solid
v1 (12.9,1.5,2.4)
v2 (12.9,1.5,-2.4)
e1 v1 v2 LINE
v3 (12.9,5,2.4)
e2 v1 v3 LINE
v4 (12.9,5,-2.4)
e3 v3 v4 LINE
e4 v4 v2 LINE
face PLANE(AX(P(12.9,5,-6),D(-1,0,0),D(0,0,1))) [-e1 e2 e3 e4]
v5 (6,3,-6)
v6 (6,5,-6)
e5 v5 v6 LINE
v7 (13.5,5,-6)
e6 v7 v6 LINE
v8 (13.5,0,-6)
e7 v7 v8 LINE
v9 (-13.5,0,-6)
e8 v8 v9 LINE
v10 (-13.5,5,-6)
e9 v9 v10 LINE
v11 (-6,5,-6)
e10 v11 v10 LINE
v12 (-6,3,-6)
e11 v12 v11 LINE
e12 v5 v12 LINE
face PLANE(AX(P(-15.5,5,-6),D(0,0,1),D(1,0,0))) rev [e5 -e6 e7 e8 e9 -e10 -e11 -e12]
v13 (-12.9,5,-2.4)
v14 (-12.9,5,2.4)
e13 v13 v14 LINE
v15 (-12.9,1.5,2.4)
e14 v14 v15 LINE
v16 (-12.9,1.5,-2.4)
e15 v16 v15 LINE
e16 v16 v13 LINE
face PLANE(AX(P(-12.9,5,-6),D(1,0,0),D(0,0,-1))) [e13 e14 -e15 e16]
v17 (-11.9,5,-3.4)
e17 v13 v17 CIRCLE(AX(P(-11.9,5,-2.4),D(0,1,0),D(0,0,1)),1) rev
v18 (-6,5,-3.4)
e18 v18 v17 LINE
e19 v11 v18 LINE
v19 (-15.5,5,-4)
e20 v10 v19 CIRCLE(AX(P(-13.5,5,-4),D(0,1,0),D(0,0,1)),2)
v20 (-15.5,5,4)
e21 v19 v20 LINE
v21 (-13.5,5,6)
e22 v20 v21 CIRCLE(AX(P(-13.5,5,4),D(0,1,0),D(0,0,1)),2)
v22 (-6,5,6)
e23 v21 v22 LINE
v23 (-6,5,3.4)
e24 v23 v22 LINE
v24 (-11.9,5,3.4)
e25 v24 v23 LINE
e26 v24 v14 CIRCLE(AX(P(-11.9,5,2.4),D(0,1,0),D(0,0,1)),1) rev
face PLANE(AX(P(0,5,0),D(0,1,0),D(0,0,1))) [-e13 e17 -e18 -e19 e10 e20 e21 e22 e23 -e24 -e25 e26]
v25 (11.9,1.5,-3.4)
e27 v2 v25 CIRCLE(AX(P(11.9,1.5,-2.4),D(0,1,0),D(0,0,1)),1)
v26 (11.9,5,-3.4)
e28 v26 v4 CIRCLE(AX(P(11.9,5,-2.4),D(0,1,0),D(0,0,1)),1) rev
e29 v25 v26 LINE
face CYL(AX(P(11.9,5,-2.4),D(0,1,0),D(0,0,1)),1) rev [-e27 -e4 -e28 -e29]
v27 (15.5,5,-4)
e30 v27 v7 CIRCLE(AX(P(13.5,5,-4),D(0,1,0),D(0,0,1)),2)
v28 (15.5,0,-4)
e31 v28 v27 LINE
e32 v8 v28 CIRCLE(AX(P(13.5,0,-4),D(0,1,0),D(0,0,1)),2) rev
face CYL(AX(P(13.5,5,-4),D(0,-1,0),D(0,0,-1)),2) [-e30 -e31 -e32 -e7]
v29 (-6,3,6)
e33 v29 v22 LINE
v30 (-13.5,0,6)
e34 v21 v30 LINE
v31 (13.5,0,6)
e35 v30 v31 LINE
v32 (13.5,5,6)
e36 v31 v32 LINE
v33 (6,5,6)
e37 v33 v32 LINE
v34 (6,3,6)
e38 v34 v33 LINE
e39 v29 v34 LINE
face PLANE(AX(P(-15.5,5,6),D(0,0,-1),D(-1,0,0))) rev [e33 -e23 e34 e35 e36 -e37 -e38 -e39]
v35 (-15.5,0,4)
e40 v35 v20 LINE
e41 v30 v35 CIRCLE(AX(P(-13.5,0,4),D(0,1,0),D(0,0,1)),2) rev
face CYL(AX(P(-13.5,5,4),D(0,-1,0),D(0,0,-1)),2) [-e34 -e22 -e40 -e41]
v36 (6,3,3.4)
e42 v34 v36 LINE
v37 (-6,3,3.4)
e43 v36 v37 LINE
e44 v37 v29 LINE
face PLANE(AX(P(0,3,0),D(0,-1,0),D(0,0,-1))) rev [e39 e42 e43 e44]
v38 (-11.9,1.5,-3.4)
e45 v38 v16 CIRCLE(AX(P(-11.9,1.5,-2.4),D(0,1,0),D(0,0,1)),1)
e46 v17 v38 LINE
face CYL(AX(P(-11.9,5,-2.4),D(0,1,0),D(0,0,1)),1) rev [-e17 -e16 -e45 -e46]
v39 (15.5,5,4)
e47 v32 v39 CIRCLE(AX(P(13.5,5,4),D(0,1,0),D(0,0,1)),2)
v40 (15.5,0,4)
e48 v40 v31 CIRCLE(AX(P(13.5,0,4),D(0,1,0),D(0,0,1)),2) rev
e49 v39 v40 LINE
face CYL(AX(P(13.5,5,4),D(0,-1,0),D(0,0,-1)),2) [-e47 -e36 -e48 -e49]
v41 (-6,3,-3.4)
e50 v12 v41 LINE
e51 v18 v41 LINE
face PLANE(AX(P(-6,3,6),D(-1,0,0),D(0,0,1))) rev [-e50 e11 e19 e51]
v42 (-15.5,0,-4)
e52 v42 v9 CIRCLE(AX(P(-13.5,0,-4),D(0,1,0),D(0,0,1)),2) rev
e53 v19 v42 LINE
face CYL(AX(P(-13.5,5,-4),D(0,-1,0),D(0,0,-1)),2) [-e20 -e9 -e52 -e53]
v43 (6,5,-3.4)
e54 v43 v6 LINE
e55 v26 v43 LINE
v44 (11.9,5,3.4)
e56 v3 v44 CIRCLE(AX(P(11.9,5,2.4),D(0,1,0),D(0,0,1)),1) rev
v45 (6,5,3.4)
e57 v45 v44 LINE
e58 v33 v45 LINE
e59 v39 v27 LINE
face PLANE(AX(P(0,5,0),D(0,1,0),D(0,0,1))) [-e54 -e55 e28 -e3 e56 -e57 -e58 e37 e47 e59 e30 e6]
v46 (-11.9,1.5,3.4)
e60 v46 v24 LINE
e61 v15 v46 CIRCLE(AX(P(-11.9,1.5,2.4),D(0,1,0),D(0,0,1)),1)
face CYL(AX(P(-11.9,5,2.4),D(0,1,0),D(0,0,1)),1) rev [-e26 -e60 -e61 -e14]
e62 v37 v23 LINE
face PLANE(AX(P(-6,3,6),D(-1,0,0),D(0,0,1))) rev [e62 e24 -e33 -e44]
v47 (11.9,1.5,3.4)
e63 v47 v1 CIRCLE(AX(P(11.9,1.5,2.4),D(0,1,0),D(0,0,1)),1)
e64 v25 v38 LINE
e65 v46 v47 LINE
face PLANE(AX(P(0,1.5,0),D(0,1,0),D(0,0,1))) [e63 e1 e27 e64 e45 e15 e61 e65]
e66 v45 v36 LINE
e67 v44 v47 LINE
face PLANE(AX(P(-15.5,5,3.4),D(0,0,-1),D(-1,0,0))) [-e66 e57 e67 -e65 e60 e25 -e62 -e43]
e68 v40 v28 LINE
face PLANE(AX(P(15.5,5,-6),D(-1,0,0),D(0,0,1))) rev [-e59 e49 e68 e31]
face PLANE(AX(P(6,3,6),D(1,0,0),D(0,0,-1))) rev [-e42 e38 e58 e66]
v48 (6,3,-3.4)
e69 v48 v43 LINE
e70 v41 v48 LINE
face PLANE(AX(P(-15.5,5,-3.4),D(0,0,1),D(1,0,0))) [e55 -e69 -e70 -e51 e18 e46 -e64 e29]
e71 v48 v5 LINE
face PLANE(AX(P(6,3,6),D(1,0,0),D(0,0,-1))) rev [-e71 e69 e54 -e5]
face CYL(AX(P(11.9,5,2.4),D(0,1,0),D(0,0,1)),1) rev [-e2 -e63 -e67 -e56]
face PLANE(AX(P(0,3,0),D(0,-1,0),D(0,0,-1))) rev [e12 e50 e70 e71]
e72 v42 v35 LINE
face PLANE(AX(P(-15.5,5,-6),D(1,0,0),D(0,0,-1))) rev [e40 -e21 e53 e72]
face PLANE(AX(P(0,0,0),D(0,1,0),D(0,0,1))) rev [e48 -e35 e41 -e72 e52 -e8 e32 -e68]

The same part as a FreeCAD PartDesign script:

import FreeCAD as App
import Part
import Sketcher
from FreeCAD import Vector
Q = App.Units.Quantity


def edges_at(feature, points):
    """Names of the edges that pass closest to the given points."""
    edges = feature.Shape.Edges
    near = lambda p: min(range(len(edges)), key=lambda i: edges[i].distToShape(Part.Vertex(*p))[0])
    return sorted({f"Edge{near(p) + 1}" for p in points})


def faces_at(feature, points):
    """Names of the faces that lie closest to the given points."""
    faces = feature.Shape.Faces
    near = lambda p: min(range(len(faces)), key=lambda i: faces[i].distToShape(Part.Vertex(*p))[0])
    return sorted({f"Face{near(p) + 1}" for p in points})

doc = App.newDocument("Part")
body = doc.addObject("PartDesign::Body", "Body")

# Sketch on XZ plane
sketch1 = body.newObject("Sketcher::SketchObject", "Sketch")
sketch1.AttachmentSupport = (doc.getObject("XZ_Plane"), [""])
sketch1.MapMode = "FlatFace"
sketch1.addGeometry(Part.LineSegment(Vector(-16, -6, 0), Vector(-16, 6, 0)), False)
sketch1.addGeometry(Part.LineSegment(Vector(-16, 6, 0), Vector(16, 6, 0)), False)
sketch1.addGeometry(Part.LineSegment(Vector(16, 6, 0), Vector(16, -6, 0)), False)
sketch1.addGeometry(Part.LineSegment(Vector(16, -6, 0), Vector(-16, -6, 0)), False)
sketch1.addConstraint(Sketcher.Constraint("Coincident", 0, 2, 1, 1))
sketch1.addConstraint(Sketcher.Constraint("Coincident", 1, 2, 2, 1))
sketch1.addConstraint(Sketcher.Constraint("Coincident", 2, 2, 3, 1))
sketch1.addConstraint(Sketcher.Constraint("Coincident", 3, 2, 0, 1))
sketch1.addConstraint(Sketcher.Constraint("Vertical", 0))
sketch1.addConstraint(Sketcher.Constraint("Horizontal", 1))
sketch1.addConstraint(Sketcher.Constraint("Vertical", 2))
sketch1.addConstraint(Sketcher.Constraint("Horizontal", 3))
sketch1.addConstraint(Sketcher.Constraint("Symmetric", 0, 2, 2, 2, -1, 1))
sketch1.addConstraint(Sketcher.Constraint("DistanceX", 1, 1, 1, 2, Q("31 mm")))
sketch1.addConstraint(Sketcher.Constraint("DistanceY", 0, 1, 0, 2, Q("12 mm")))
pad1 = body.newObject("PartDesign::Pad", "Pad")
pad1.Profile = sketch1
pad1.Length = 5
pad1.Reversed = True
doc.recompute()

thickness = body.newObject("PartDesign::Thickness", "Thickness")
thickness.Base = (pad1, faces_at(pad1, [(0, 5, 0)]))
thickness.Value = 2.6
thickness.Reversed = True
thickness.Join = "Intersection"

# Sketch on XZ plane
sketch2 = body.newObject("Sketcher::SketchObject", "Sketch001")
sketch2.AttachmentSupport = (doc.getObject("XZ_Plane"), [""])
sketch2.MapMode = "FlatFace"
sketch2.AttachmentOffset = App.Placement(Vector(0, 0, -2.6), App.Rotation())
sketch2.addGeometry(Part.LineSegment(Vector(13, 3, 0), Vector(-13, 3, 0)), False)
sketch2.addGeometry(Part.LineSegment(Vector(-13, 3, 0), Vector(-13, -3, 0)), False)
sketch2.addGeometry(Part.LineSegment(Vector(-13, -3, 0), Vector(13, -3, 0)), False)
sketch2.addGeometry(Part.LineSegment(Vector(13, -3, 0), Vector(13, 3, 0)), False)
sketch2.addConstraint(Sketcher.Constraint("Coincident", 0, 2, 1, 1))
sketch2.addConstraint(Sketcher.Constraint("Coincident", 1, 2, 2, 1))
sketch2.addConstraint(Sketcher.Constraint("Coincident", 2, 2, 3, 1))
sketch2.addConstraint(Sketcher.Constraint("Coincident", 3, 2, 0, 1))
sketch2.addConstraint(Sketcher.Constraint("Horizontal", 0))
sketch2.addConstraint(Sketcher.Constraint("Vertical", 1))
sketch2.addConstraint(Sketcher.Constraint("Horizontal", 2))
sketch2.addConstraint(Sketcher.Constraint("Vertical", 3))
sketch2.addConstraint(Sketcher.Constraint("Symmetric", 0, 2, 2, 2, -1, 1))
sketch2.addConstraint(Sketcher.Constraint("DistanceX", 0, 2, 0, 1, Q("25.8 mm")))
sketch2.addConstraint(Sketcher.Constraint("DistanceY", 1, 2, 1, 1, Q("6.8 mm")))
pocket1 = body.newObject("PartDesign::Pocket", "Pocket")
pocket1.Profile = sketch2
pocket1.Length = 1.1
pocket1.Reversed = True

# Sketch on XZ plane
sketch3 = body.newObject("Sketcher::SketchObject", "Sketch002")
sketch3.AttachmentSupport = (doc.getObject("XZ_Plane"), [""])
sketch3.MapMode = "FlatFace"
sketch3.AttachmentOffset = App.Placement(Vector(0, 0, -5), App.Rotation())
sketch3.addGeometry(Part.LineSegment(Vector(-6, -6, 0), Vector(-6, 6, 0)), False)
sketch3.addGeometry(Part.LineSegment(Vector(-6, 6, 0), Vector(6, 6, 0)), False)
sketch3.addGeometry(Part.LineSegment(Vector(6, 6, 0), Vector(6, -6, 0)), False)
sketch3.addGeometry(Part.LineSegment(Vector(6, -6, 0), Vector(-6, -6, 0)), False)
sketch3.addConstraint(Sketcher.Constraint("Coincident", 0, 2, 1, 1))
sketch3.addConstraint(Sketcher.Constraint("Coincident", 1, 2, 2, 1))
sketch3.addConstraint(Sketcher.Constraint("Coincident", 2, 2, 3, 1))
sketch3.addConstraint(Sketcher.Constraint("Coincident", 3, 2, 0, 1))
sketch3.addConstraint(Sketcher.Constraint("Vertical", 0))
sketch3.addConstraint(Sketcher.Constraint("Horizontal", 1))
sketch3.addConstraint(Sketcher.Constraint("Vertical", 2))
sketch3.addConstraint(Sketcher.Constraint("Horizontal", 3))
sketch3.addConstraint(Sketcher.Constraint("Symmetric", 0, 2, 2, 2, -1, 1))
sketch3.addConstraint(Sketcher.Constraint("Equal", 3, 0))
sketch3.addConstraint(Sketcher.Constraint("DistanceX", 1, 1, 1, 2, Q("12 mm")))
pocket2 = body.newObject("PartDesign::Pocket", "Pocket001")
pocket2.Profile = sketch3
pocket2.Length = 2
pocket2.Reversed = True
doc.recompute()

fillet = body.newObject("PartDesign::Fillet", "Fillet")
fillet.Base = (pocket2, edges_at(pocket2, [
    (15.5, 2.5, 6),
    (-15.5, 2.5, 6),
    (-15.5, 2.5, -6),
    (15.5, 2.5, -6),
]))
fillet.Radius = 2
doc.recompute()

fillet2 = body.newObject("PartDesign::Fillet", "Fillet001")
fillet2.Base = (fillet, edges_at(fillet, [
    (12.9, 3.25, 3.4),
    (12.9, 3.25, -3.4),
    (-12.9, 3.25, -3.4),
    (-12.9, 3.25, 3.4),
]))
fillet2.Radius = 1

doc.recompute()
